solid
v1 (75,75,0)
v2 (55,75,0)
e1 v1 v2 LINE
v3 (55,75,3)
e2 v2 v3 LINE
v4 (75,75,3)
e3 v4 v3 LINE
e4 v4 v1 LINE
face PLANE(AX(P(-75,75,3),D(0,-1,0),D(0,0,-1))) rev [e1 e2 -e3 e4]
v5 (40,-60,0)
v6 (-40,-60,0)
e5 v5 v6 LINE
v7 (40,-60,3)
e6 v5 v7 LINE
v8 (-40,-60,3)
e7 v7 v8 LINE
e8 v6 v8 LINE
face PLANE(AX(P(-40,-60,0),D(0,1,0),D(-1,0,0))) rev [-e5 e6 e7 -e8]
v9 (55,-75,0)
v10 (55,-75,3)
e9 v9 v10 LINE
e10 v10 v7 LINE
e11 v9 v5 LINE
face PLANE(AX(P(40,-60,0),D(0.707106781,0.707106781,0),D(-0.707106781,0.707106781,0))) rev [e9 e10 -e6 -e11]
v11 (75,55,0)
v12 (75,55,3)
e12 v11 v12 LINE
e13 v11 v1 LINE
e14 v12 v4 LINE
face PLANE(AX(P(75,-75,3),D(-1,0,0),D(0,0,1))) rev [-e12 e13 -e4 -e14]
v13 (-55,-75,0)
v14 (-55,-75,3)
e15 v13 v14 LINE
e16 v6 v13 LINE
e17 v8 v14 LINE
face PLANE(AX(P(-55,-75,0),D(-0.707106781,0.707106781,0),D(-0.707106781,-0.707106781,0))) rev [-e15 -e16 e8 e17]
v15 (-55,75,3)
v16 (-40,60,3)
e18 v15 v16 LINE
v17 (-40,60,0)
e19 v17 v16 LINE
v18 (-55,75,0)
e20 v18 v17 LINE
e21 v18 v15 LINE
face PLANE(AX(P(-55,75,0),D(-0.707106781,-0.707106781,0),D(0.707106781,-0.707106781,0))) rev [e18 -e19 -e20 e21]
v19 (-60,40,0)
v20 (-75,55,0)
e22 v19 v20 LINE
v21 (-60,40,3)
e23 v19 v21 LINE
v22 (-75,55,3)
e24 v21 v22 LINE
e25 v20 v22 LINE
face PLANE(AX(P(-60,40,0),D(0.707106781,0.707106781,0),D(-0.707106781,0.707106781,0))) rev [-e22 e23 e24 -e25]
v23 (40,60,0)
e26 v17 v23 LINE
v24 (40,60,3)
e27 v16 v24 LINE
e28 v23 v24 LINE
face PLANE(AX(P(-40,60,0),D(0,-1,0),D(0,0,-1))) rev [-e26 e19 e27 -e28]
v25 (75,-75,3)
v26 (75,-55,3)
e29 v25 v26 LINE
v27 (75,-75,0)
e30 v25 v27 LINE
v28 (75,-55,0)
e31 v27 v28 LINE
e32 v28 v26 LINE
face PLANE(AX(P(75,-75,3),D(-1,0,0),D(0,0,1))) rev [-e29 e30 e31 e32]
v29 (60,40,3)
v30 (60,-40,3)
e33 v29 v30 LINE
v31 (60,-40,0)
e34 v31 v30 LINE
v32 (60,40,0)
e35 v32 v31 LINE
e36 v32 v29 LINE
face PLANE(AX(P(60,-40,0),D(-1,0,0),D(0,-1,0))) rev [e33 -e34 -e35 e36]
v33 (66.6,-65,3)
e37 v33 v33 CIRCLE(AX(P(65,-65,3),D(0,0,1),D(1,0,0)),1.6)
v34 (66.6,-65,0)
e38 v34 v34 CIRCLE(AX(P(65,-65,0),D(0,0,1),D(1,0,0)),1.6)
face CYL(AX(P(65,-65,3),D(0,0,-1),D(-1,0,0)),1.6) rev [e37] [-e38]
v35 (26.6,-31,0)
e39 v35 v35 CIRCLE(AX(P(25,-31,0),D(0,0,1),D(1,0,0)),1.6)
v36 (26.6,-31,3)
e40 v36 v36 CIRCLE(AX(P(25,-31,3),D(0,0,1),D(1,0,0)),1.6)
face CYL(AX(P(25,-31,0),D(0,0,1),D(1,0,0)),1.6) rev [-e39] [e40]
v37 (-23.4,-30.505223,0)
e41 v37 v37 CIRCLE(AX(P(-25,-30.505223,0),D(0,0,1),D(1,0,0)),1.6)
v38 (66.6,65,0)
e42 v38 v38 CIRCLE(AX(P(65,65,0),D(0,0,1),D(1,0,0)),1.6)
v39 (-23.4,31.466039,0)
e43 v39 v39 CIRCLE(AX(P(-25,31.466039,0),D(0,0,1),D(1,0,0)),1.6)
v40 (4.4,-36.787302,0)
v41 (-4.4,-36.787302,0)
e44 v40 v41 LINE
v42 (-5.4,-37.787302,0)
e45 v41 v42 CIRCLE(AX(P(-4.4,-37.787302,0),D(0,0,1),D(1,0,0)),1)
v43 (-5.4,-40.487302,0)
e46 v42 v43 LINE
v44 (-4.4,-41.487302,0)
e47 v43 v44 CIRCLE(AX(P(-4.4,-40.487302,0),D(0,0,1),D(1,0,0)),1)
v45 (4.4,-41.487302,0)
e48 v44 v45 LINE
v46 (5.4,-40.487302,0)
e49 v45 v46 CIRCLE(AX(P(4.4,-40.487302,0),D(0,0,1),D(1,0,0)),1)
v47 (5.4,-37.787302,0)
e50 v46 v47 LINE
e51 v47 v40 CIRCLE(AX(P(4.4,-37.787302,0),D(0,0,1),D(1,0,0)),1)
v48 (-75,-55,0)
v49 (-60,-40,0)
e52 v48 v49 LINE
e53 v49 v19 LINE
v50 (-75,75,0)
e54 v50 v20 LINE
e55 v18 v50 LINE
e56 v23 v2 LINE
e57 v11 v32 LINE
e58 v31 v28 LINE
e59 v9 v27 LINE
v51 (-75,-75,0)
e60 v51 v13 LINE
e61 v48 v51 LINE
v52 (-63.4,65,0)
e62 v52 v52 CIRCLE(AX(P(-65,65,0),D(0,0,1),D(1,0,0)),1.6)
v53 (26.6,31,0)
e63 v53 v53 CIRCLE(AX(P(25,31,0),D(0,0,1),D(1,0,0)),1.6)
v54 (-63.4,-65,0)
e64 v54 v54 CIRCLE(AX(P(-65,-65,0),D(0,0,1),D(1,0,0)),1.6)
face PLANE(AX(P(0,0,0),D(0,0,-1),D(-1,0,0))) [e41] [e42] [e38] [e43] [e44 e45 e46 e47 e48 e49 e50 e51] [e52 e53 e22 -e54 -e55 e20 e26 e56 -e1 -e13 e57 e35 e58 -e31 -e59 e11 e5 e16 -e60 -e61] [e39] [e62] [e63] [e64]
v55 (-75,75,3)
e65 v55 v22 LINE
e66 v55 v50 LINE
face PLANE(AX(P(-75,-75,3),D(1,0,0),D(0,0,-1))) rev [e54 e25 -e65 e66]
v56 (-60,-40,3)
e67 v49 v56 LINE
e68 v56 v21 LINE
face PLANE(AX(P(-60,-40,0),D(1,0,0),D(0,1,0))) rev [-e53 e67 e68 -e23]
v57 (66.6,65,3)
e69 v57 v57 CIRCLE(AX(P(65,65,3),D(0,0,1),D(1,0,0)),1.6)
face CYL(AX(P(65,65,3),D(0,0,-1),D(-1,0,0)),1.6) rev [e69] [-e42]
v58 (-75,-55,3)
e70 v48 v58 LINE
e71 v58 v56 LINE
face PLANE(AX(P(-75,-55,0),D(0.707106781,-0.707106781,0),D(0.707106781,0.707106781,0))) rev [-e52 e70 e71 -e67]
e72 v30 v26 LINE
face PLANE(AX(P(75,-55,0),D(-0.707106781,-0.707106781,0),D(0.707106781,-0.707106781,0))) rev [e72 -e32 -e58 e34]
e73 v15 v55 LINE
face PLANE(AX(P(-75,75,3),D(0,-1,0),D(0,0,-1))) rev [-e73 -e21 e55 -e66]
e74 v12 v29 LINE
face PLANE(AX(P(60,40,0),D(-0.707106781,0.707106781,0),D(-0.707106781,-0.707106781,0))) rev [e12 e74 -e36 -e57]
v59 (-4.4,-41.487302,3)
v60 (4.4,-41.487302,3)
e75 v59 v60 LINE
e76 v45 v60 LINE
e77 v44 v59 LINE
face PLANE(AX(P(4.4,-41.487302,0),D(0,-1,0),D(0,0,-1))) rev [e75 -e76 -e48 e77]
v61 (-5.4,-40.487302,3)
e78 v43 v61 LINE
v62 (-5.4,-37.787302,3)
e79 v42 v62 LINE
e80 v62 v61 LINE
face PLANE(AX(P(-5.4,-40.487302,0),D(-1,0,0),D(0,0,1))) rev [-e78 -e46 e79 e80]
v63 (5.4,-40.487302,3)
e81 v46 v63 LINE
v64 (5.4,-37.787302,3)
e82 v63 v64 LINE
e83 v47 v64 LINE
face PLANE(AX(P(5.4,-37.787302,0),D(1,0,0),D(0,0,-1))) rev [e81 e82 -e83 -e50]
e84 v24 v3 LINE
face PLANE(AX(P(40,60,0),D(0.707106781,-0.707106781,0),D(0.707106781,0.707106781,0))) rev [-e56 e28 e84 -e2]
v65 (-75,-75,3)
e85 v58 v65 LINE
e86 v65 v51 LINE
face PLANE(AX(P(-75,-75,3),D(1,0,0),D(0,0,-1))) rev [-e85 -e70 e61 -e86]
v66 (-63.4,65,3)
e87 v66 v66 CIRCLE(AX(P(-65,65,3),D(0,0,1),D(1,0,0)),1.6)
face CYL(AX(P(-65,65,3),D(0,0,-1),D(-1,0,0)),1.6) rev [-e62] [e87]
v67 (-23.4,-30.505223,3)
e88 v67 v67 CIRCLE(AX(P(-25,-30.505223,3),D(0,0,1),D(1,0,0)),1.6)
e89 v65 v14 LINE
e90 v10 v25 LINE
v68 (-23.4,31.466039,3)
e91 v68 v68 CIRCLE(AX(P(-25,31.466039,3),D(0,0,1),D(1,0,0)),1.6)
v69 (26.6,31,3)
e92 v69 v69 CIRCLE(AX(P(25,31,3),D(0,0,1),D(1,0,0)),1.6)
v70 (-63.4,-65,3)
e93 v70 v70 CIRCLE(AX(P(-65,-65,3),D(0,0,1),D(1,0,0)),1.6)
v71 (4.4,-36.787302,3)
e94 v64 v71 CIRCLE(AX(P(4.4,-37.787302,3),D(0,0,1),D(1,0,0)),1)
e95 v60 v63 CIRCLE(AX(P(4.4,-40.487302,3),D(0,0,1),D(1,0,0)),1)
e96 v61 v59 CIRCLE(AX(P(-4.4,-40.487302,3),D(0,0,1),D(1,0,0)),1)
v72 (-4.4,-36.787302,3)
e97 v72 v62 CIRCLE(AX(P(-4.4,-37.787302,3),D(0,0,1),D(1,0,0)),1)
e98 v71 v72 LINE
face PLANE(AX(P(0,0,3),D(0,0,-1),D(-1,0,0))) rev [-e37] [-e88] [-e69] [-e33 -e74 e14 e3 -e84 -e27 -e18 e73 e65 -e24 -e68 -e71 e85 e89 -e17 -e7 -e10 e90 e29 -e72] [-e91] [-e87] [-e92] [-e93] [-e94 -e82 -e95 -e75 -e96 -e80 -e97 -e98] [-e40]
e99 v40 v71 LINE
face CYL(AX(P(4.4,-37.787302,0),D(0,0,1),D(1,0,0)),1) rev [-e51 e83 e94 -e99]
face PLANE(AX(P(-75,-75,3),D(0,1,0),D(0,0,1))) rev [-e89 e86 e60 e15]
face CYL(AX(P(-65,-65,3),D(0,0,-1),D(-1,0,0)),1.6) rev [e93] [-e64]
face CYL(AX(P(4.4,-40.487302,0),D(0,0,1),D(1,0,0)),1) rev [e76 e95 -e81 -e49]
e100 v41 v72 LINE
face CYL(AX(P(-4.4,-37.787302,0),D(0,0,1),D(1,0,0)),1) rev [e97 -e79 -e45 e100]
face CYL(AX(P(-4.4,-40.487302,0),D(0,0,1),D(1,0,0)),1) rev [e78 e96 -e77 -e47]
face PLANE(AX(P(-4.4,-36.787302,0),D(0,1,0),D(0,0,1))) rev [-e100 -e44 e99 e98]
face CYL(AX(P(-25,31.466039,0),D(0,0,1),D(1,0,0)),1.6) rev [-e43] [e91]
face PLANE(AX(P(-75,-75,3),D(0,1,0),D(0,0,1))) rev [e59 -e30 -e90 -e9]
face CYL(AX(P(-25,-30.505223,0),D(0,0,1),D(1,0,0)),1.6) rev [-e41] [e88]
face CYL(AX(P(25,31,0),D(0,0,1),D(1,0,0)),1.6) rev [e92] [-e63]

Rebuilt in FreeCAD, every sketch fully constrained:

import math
import FreeCAD as App
import Part
import Sketcher

V = App.Vector


def add_polygon(sketch, points):
    """Adds a closed chain of lines whose ends are joined by coincident constraints."""
    first, n = sketch.GeometryCount, len(points)
    for a, b in zip(points, points[1:] + points[:1]):
        sketch.addGeometry(Part.LineSegment(App.Vector(*a, 0), App.Vector(*b, 0)), False)
    for i in range(n):
        sketch.addConstraint(Sketcher.Constraint("Coincident", first + i, 2, first + (i + 1) % n, 1))

doc = App.newDocument("Part")
body = doc.addObject("PartDesign::Body", "Body")

sketch1 = body.newObject("Sketcher::SketchObject", "Sketch")
sketch1.AttachmentSupport = (doc.getObject("XY_Plane"), [""])
sketch1.MapMode = "FlatFace"
add_polygon(sketch1, [(-75, 75), (-75, -75), (75, -75), (75, 75)])
sketch1.addGeometry(Part.Circle(V(-65, -65, 0), V(0, 0, 1), 1.6), False)
sketch1.addGeometry(Part.Circle(V(65, -65, 0), V(0, 0, 1), 1.6), False)
sketch1.addGeometry(Part.Circle(V(-65, 65, 0), V(0, 0, 1), 1.6), False)
sketch1.addGeometry(Part.Circle(V(65, 65, 0), V(0, 0, 1), 1.6), False)
sketch1.addConstraint([
    Sketcher.Constraint("Vertical", 0),
    Sketcher.Constraint("Horizontal", 1),
    Sketcher.Constraint("Vertical", 2),
    Sketcher.Constraint("Horizontal", 3),
    Sketcher.Constraint("Equal", 4, 5),
    Sketcher.Constraint("Equal", 5, 6),
    Sketcher.Constraint("Equal", 6, 7),
    Sketcher.Constraint("Symmetric", 5, 3, 6, 3, -1, 1),
    Sketcher.Constraint("Symmetric", 4, 3, 7, 3, -1, 1),
    Sketcher.Constraint("Symmetric", 0, 2, 2, 2, -1, 1),
    Sketcher.Constraint("Symmetric", 4, 3, 5, 3, -2),
    Sketcher.Constraint("Equal", 3, 0),
    Sketcher.Constraint("Diameter", 4, 3.2),
    Sketcher.Constraint("DistanceX", 1, 1, 1, 2, 150.0),
    Sketcher.Constraint("DistanceX", 4, 3, -1, 1, 65.0),
    Sketcher.Constraint("DistanceY", 4, 3, -1, 1, 65.0),
])
pad1 = body.newObject("PartDesign::Pad", "Pad")
pad1.Profile = sketch1
pad1.Length = 3

sketch2 = body.newObject("Sketcher::SketchObject", "Sketch001")
sketch2.AttachmentSupport = (doc.getObject("XY_Plane"), [""])
sketch2.MapMode = "FlatFace"
sketch2.AttachmentOffset = App.Placement(V(0, 0, 3), App.Rotation())
sketch2.addGeometry(Part.Circle(V(-25, -30.505223, 0), V(0, 0, 1), 1.6), False)
sketch2.addGeometry(Part.Circle(V(25, -31, 0), V(0, 0, 1), 1.6), False)
sketch2.addGeometry(Part.Circle(V(25, 31, 0), V(0, 0, 1), 1.6), False)
sketch2.addGeometry(Part.Circle(V(-25, 31.466039, 0), V(0, 0, 1), 1.6), False)
add_polygon(sketch2, [(75, -55), (75, 55), (60, 40), (60, -40)])
add_polygon(sketch2, [(-55, 75), (-40, 60), (40, 60), (55, 75)])
add_polygon(sketch2, [(-75, -55), (-60, -40), (-60, 40), (-75, 55)])
add_polygon(sketch2, [(-55, -75), (55, -75), (40, -60), (-40, -60)])
sketch2.addConstraint([
    Sketcher.Constraint("Vertical", 4),
    Sketcher.Constraint("Vertical", 6),
    Sketcher.Constraint("Horizontal", 9),
    Sketcher.Constraint("Horizontal", 11),
    Sketcher.Constraint("Vertical", 13),
    Sketcher.Constraint("Vertical", 15),
    Sketcher.Constraint("Horizontal", 16),
    Sketcher.Constraint("Horizontal", 18),
    Sketcher.Constraint("Equal", 0, 1),
    Sketcher.Constraint("Equal", 1, 2),
    Sketcher.Constraint("Equal", 2, 3),
    Sketcher.Constraint("Symmetric", 5, 2, 12, 2, -1, 1),
    Sketcher.Constraint("Symmetric", 7, 2, 14, 2, -1, 1),
    Sketcher.Constraint("Symmetric", 11, 2, 16, 2, -1, 1),
    Sketcher.Constraint("Symmetric", 8, 2, 17, 2, -1, 1),
    Sketcher.Constraint("Symmetric", 1, 3, 2, 3, -1),
    Sketcher.Constraint("Perpendicular", 5, 7),
    Sketcher.Constraint("Parallel", 7, 8),
    Sketcher.Constraint("Perpendicular", 8, 10),
    Sketcher.Constraint("Parallel", 10, 12),
    Sketcher.Constraint("Perpendicular", 12, 14),
    Sketcher.Constraint("Perpendicular", 17, 19),
    Sketcher.Constraint("Horizontal", 6, 2, 12, 2),
    Sketcher.Constraint("Horizontal", 4, 2, 14, 2),
    Sketcher.Constraint("Vertical", 0, 3, 3, 3),
    Sketcher.Constraint("Vertical", 10, 2, 16, 2),
    Sketcher.Constraint("Vertical", 8, 2, 18, 2),
    Sketcher.Constraint("Equal", 16, 4),
    Sketcher.Constraint("Equal", 18, 6),
    Sketcher.Constraint("Diameter", 0, 3.2),
    Sketcher.Constraint("DistanceX", 9, 1, 9, 2, 80.0),
    Sketcher.Constraint("DistanceX", 11, 2, 11, 1, 110.0),
    Sketcher.Constraint("DistanceX", 0, 3, -1, 1, 25.0),
    Sketcher.Constraint("DistanceX", -1, 1, 1, 3, 25.0),
    Sketcher.Constraint("DistanceY", 1, 3, -1, 1, 31.0),
    Sketcher.Constraint("DistanceX", -1, 1, 4, 2, 75.0),
    Sketcher.Constraint("DistanceY", -1, 1, 8, 2, 60.0),
    Sketcher.Constraint("DistanceY", -1, 1, 3, 3, 31.466039),
    Sketcher.Constraint("DistanceY", 0, 3, -1, 1, 30.505223),
])
pocket1 = body.newObject("PartDesign::Pocket", "Pocket")
pocket1.Profile = sketch2
pocket1.Length = 3

sketch3 = body.newObject("Sketcher::SketchObject", "Sketch002")
sketch3.AttachmentSupport = (doc.getObject("XY_Plane"), [""])
sketch3.MapMode = "FlatFace"
sketch3.AttachmentOffset = App.Placement(V(0, 0, 3), App.Rotation())
sketch3.addGeometry([
    Part.LineSegment(V(-5.4, -37.787302, 0), V(-5.4, -40.487302, 0)),
    Part.ArcOfCircle(Part.Circle(V(-4.4, -40.487302, 0), V(0, 0, 1), 1), math.radians(-180), math.radians(-90)),
    Part.LineSegment(V(-4.4, -41.487302, 0), V(4.4, -41.487302, 0)),
    Part.ArcOfCircle(Part.Circle(V(4.4, -40.487302, 0), V(0, 0, 1), 1), math.radians(-90), math.radians(0)),
    Part.LineSegment(V(5.4, -40.487302, 0), V(5.4, -37.787302, 0)),
    Part.ArcOfCircle(Part.Circle(V(4.4, -37.787302, 0), V(0, 0, 1), 1), math.radians(0), math.radians(90)),
    Part.LineSegment(V(4.4, -36.787302, 0), V(-4.4, -36.787302, 0)),
    Part.ArcOfCircle(Part.Circle(V(-4.4, -37.787302, 0), V(0, 0, 1), 1), math.radians(90), math.radians(180)),
], False)
sketch3.addConstraint([
    Sketcher.Constraint("Tangent", 0, 2, 1, 1),
    Sketcher.Constraint("Tangent", 1, 2, 2, 1),
    Sketcher.Constraint("Tangent", 2, 2, 3, 1),
    Sketcher.Constraint("Tangent", 3, 2, 4, 1),
    Sketcher.Constraint("Tangent", 4, 2, 5, 1),
    Sketcher.Constraint("Tangent", 5, 2, 6, 1),
    Sketcher.Constraint("Tangent", 6, 2, 7, 1),
    Sketcher.Constraint("Tangent", 7, 2, 0, 1),
    Sketcher.Constraint("Vertical", 0),
    Sketcher.Constraint("Horizontal", 2),
    Sketcher.Constraint("Vertical", 4),
    Sketcher.Constraint("Horizontal", 6),
    Sketcher.Constraint("Equal", 1, 3),
    Sketcher.Constraint("Equal", 3, 5),
    Sketcher.Constraint("Equal", 5, 7),
    Sketcher.Constraint("Radius", 1, 1.0),
    Sketcher.Constraint("DistanceX", 2, 1, 2, 2, 8.8),
    Sketcher.Constraint("DistanceY", 0, 2, 0, 1, 2.7),
    Sketcher.Constraint("DistanceX", 1, 3, -1, 1, 4.4),
    Sketcher.Constraint("DistanceY", 1, 3, -1, 1, 40.487302),
])
pocket2 = body.newObject("PartDesign::Pocket", "Pocket001")
pocket2.Profile = sketch3
pocket2.Length = 3

doc.recompute()
